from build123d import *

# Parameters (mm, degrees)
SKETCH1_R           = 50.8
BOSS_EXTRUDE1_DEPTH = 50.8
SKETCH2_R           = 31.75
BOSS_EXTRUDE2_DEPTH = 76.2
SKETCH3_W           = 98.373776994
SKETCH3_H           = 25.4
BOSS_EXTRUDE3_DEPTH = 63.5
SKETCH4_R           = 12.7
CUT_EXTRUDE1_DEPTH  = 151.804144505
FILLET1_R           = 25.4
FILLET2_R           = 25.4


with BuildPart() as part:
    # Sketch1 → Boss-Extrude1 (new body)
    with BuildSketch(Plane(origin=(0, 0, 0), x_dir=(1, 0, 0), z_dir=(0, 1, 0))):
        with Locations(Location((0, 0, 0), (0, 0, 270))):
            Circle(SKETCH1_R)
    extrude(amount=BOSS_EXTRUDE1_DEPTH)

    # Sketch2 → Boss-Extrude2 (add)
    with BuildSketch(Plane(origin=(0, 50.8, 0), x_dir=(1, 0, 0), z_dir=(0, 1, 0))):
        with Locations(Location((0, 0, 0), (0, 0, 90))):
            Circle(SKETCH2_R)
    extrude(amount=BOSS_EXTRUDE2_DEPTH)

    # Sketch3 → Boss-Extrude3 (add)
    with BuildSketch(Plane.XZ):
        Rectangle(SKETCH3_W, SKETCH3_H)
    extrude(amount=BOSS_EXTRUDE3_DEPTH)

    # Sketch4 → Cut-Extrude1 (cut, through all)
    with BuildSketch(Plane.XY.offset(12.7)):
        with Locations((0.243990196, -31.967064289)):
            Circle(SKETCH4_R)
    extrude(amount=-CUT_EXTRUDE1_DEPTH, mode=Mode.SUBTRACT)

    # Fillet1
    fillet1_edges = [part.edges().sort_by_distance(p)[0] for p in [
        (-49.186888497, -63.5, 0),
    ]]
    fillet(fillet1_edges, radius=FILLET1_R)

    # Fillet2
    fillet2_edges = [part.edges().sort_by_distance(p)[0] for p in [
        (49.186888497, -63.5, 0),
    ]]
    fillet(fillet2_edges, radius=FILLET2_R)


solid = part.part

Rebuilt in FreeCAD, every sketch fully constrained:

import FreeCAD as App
import Part
import Sketcher
Q = App.Units.Quantity


def edges_at(feature, points):
    """Names of the edges that pass closest to the given points."""
    edges = feature.Shape.Edges
    near = lambda p: min(range(len(edges)), key=lambda i: edges[i].distToShape(Part.Vertex(*p))[0])
    return sorted({f"Edge{near(p) + 1}" for p in points})

doc = App.newDocument("Part")
body = doc.addObject("PartDesign::Body", "Body")

# Sketch on XZ plane
sketch1 = body.newObject("Sketcher::SketchObject", "Sketch")
sketch1.AttachmentSupport = (doc.getObject("XZ_Plane"), [""])
sketch1.MapMode = "FlatFace"
sketch1.addGeometry(Part.Circle(App.Vector(0, 0, 0), App.Vector(0, 0, 1), 51), False)
sketch1.addConstraint([
    Sketcher.Constraint("Coincident", 0, 3, -1, 1),
    Sketcher.Constraint("Diameter", 0, Q("4 in")),
])
pad1 = body.newObject("PartDesign::Pad", "Pad")
pad1.Profile = sketch1
pad1.Length = Q("2 in")
pad1.Reversed = True

# Sketch on XZ plane
sketch2 = body.newObject("Sketcher::SketchObject", "Sketch001")
sketch2.AttachmentSupport = (doc.getObject("XZ_Plane"), [""])
sketch2.MapMode = "FlatFace"
sketch2.AttachmentOffset = App.Placement(App.Vector(0, 0, -2 * 25.4), App.Rotation())
sketch2.addGeometry(Part.Circle(App.Vector(0, 0, 0), App.Vector(0, 0, 1), 32), False)
sketch2.addConstraint([
    Sketcher.Constraint("Coincident", 0, 3, -1, 1),
    Sketcher.Constraint("Diameter", 0, Q("2.5 in")),
])
pad2 = body.newObject("PartDesign::Pad", "Pad001")
pad2.Profile = sketch2
pad2.Length = Q("3 in")
pad2.Reversed = True

# Sketch on XZ plane
sketch3 = body.newObject("Sketcher::SketchObject", "Sketch002")
sketch3.AttachmentSupport = (doc.getObject("XZ_Plane"), [""])
sketch3.MapMode = "FlatFace"
sketch3.addGeometry([
    Part.LineSegment(App.Vector(-49, 13, 0), App.Vector(-49, -13, 0)),
    Part.LineSegment(App.Vector(-49, -13, 0), App.Vector(49, -13, 0)),
    Part.LineSegment(App.Vector(49, -13, 0), App.Vector(49, 13, 0)),
    Part.LineSegment(App.Vector(49, 13, 0), App.Vector(-49, 13, 0)),
], False)
sketch3.addConstraint([
    Sketcher.Constraint("Coincident", 0, 2, 1, 1),
    Sketcher.Constraint("Coincident", 1, 2, 2, 1),
    Sketcher.Constraint("Coincident", 2, 2, 3, 1),
    Sketcher.Constraint("Coincident", 3, 2, 0, 1),
    Sketcher.Constraint("Vertical", 0),
    Sketcher.Constraint("Horizontal", 1),
    Sketcher.Constraint("Vertical", 2),
    Sketcher.Constraint("Horizontal", 3),
    Sketcher.Constraint("Symmetric", 0, 2, 2, 2, -1, 1),
    Sketcher.Constraint("DistanceY", 0, 2, 0, 1, Q("1 in")),
    Sketcher.Constraint("DistanceX", 1, 1, 1, 2, 98.373777),
])
pad3 = body.newObject("PartDesign::Pad", "Pad002")
pad3.Profile = sketch3
pad3.Length = Q("2.5 in")

# Sketch on XY plane
sketch4 = body.newObject("Sketcher::SketchObject", "Sketch003")
sketch4.AttachmentSupport = (doc.getObject("XY_Plane"), [""])
sketch4.MapMode = "FlatFace"
sketch4.AttachmentOffset = App.Placement(App.Vector(0, 0, 0.5 * 25.4), App.Rotation())
sketch4.addGeometry(Part.Circle(App.Vector(0, -32, 0), App.Vector(0, 0, 1), 13), False)
sketch4.addConstraint([
    Sketcher.Constraint("Diameter", 0, Q("1 in")),
    Sketcher.Constraint("DistanceX", -1, 1, 0, 3, 0.24399),
    Sketcher.Constraint("DistanceY", 0, 3, -1, 1, 31.967064),
])
pocket1 = body.newObject("PartDesign::Pocket", "Pocket")
pocket1.Profile = sketch4
pocket1.Type = "ThroughAll"
doc.recompute()

fillet = body.newObject("PartDesign::Fillet", "Fillet")
fillet.Base = (pocket1, edges_at(pocket1, [(-49.187, -63.5, 0)]))
fillet.Radius = Q("1 in")
doc.recompute()

fillet2 = body.newObject("PartDesign::Fillet", "Fillet001")
fillet2.Base = (fillet, edges_at(fillet, [(49.187, -63.5, 0)]))
fillet2.Radius = Q("1 in")

doc.recompute()
